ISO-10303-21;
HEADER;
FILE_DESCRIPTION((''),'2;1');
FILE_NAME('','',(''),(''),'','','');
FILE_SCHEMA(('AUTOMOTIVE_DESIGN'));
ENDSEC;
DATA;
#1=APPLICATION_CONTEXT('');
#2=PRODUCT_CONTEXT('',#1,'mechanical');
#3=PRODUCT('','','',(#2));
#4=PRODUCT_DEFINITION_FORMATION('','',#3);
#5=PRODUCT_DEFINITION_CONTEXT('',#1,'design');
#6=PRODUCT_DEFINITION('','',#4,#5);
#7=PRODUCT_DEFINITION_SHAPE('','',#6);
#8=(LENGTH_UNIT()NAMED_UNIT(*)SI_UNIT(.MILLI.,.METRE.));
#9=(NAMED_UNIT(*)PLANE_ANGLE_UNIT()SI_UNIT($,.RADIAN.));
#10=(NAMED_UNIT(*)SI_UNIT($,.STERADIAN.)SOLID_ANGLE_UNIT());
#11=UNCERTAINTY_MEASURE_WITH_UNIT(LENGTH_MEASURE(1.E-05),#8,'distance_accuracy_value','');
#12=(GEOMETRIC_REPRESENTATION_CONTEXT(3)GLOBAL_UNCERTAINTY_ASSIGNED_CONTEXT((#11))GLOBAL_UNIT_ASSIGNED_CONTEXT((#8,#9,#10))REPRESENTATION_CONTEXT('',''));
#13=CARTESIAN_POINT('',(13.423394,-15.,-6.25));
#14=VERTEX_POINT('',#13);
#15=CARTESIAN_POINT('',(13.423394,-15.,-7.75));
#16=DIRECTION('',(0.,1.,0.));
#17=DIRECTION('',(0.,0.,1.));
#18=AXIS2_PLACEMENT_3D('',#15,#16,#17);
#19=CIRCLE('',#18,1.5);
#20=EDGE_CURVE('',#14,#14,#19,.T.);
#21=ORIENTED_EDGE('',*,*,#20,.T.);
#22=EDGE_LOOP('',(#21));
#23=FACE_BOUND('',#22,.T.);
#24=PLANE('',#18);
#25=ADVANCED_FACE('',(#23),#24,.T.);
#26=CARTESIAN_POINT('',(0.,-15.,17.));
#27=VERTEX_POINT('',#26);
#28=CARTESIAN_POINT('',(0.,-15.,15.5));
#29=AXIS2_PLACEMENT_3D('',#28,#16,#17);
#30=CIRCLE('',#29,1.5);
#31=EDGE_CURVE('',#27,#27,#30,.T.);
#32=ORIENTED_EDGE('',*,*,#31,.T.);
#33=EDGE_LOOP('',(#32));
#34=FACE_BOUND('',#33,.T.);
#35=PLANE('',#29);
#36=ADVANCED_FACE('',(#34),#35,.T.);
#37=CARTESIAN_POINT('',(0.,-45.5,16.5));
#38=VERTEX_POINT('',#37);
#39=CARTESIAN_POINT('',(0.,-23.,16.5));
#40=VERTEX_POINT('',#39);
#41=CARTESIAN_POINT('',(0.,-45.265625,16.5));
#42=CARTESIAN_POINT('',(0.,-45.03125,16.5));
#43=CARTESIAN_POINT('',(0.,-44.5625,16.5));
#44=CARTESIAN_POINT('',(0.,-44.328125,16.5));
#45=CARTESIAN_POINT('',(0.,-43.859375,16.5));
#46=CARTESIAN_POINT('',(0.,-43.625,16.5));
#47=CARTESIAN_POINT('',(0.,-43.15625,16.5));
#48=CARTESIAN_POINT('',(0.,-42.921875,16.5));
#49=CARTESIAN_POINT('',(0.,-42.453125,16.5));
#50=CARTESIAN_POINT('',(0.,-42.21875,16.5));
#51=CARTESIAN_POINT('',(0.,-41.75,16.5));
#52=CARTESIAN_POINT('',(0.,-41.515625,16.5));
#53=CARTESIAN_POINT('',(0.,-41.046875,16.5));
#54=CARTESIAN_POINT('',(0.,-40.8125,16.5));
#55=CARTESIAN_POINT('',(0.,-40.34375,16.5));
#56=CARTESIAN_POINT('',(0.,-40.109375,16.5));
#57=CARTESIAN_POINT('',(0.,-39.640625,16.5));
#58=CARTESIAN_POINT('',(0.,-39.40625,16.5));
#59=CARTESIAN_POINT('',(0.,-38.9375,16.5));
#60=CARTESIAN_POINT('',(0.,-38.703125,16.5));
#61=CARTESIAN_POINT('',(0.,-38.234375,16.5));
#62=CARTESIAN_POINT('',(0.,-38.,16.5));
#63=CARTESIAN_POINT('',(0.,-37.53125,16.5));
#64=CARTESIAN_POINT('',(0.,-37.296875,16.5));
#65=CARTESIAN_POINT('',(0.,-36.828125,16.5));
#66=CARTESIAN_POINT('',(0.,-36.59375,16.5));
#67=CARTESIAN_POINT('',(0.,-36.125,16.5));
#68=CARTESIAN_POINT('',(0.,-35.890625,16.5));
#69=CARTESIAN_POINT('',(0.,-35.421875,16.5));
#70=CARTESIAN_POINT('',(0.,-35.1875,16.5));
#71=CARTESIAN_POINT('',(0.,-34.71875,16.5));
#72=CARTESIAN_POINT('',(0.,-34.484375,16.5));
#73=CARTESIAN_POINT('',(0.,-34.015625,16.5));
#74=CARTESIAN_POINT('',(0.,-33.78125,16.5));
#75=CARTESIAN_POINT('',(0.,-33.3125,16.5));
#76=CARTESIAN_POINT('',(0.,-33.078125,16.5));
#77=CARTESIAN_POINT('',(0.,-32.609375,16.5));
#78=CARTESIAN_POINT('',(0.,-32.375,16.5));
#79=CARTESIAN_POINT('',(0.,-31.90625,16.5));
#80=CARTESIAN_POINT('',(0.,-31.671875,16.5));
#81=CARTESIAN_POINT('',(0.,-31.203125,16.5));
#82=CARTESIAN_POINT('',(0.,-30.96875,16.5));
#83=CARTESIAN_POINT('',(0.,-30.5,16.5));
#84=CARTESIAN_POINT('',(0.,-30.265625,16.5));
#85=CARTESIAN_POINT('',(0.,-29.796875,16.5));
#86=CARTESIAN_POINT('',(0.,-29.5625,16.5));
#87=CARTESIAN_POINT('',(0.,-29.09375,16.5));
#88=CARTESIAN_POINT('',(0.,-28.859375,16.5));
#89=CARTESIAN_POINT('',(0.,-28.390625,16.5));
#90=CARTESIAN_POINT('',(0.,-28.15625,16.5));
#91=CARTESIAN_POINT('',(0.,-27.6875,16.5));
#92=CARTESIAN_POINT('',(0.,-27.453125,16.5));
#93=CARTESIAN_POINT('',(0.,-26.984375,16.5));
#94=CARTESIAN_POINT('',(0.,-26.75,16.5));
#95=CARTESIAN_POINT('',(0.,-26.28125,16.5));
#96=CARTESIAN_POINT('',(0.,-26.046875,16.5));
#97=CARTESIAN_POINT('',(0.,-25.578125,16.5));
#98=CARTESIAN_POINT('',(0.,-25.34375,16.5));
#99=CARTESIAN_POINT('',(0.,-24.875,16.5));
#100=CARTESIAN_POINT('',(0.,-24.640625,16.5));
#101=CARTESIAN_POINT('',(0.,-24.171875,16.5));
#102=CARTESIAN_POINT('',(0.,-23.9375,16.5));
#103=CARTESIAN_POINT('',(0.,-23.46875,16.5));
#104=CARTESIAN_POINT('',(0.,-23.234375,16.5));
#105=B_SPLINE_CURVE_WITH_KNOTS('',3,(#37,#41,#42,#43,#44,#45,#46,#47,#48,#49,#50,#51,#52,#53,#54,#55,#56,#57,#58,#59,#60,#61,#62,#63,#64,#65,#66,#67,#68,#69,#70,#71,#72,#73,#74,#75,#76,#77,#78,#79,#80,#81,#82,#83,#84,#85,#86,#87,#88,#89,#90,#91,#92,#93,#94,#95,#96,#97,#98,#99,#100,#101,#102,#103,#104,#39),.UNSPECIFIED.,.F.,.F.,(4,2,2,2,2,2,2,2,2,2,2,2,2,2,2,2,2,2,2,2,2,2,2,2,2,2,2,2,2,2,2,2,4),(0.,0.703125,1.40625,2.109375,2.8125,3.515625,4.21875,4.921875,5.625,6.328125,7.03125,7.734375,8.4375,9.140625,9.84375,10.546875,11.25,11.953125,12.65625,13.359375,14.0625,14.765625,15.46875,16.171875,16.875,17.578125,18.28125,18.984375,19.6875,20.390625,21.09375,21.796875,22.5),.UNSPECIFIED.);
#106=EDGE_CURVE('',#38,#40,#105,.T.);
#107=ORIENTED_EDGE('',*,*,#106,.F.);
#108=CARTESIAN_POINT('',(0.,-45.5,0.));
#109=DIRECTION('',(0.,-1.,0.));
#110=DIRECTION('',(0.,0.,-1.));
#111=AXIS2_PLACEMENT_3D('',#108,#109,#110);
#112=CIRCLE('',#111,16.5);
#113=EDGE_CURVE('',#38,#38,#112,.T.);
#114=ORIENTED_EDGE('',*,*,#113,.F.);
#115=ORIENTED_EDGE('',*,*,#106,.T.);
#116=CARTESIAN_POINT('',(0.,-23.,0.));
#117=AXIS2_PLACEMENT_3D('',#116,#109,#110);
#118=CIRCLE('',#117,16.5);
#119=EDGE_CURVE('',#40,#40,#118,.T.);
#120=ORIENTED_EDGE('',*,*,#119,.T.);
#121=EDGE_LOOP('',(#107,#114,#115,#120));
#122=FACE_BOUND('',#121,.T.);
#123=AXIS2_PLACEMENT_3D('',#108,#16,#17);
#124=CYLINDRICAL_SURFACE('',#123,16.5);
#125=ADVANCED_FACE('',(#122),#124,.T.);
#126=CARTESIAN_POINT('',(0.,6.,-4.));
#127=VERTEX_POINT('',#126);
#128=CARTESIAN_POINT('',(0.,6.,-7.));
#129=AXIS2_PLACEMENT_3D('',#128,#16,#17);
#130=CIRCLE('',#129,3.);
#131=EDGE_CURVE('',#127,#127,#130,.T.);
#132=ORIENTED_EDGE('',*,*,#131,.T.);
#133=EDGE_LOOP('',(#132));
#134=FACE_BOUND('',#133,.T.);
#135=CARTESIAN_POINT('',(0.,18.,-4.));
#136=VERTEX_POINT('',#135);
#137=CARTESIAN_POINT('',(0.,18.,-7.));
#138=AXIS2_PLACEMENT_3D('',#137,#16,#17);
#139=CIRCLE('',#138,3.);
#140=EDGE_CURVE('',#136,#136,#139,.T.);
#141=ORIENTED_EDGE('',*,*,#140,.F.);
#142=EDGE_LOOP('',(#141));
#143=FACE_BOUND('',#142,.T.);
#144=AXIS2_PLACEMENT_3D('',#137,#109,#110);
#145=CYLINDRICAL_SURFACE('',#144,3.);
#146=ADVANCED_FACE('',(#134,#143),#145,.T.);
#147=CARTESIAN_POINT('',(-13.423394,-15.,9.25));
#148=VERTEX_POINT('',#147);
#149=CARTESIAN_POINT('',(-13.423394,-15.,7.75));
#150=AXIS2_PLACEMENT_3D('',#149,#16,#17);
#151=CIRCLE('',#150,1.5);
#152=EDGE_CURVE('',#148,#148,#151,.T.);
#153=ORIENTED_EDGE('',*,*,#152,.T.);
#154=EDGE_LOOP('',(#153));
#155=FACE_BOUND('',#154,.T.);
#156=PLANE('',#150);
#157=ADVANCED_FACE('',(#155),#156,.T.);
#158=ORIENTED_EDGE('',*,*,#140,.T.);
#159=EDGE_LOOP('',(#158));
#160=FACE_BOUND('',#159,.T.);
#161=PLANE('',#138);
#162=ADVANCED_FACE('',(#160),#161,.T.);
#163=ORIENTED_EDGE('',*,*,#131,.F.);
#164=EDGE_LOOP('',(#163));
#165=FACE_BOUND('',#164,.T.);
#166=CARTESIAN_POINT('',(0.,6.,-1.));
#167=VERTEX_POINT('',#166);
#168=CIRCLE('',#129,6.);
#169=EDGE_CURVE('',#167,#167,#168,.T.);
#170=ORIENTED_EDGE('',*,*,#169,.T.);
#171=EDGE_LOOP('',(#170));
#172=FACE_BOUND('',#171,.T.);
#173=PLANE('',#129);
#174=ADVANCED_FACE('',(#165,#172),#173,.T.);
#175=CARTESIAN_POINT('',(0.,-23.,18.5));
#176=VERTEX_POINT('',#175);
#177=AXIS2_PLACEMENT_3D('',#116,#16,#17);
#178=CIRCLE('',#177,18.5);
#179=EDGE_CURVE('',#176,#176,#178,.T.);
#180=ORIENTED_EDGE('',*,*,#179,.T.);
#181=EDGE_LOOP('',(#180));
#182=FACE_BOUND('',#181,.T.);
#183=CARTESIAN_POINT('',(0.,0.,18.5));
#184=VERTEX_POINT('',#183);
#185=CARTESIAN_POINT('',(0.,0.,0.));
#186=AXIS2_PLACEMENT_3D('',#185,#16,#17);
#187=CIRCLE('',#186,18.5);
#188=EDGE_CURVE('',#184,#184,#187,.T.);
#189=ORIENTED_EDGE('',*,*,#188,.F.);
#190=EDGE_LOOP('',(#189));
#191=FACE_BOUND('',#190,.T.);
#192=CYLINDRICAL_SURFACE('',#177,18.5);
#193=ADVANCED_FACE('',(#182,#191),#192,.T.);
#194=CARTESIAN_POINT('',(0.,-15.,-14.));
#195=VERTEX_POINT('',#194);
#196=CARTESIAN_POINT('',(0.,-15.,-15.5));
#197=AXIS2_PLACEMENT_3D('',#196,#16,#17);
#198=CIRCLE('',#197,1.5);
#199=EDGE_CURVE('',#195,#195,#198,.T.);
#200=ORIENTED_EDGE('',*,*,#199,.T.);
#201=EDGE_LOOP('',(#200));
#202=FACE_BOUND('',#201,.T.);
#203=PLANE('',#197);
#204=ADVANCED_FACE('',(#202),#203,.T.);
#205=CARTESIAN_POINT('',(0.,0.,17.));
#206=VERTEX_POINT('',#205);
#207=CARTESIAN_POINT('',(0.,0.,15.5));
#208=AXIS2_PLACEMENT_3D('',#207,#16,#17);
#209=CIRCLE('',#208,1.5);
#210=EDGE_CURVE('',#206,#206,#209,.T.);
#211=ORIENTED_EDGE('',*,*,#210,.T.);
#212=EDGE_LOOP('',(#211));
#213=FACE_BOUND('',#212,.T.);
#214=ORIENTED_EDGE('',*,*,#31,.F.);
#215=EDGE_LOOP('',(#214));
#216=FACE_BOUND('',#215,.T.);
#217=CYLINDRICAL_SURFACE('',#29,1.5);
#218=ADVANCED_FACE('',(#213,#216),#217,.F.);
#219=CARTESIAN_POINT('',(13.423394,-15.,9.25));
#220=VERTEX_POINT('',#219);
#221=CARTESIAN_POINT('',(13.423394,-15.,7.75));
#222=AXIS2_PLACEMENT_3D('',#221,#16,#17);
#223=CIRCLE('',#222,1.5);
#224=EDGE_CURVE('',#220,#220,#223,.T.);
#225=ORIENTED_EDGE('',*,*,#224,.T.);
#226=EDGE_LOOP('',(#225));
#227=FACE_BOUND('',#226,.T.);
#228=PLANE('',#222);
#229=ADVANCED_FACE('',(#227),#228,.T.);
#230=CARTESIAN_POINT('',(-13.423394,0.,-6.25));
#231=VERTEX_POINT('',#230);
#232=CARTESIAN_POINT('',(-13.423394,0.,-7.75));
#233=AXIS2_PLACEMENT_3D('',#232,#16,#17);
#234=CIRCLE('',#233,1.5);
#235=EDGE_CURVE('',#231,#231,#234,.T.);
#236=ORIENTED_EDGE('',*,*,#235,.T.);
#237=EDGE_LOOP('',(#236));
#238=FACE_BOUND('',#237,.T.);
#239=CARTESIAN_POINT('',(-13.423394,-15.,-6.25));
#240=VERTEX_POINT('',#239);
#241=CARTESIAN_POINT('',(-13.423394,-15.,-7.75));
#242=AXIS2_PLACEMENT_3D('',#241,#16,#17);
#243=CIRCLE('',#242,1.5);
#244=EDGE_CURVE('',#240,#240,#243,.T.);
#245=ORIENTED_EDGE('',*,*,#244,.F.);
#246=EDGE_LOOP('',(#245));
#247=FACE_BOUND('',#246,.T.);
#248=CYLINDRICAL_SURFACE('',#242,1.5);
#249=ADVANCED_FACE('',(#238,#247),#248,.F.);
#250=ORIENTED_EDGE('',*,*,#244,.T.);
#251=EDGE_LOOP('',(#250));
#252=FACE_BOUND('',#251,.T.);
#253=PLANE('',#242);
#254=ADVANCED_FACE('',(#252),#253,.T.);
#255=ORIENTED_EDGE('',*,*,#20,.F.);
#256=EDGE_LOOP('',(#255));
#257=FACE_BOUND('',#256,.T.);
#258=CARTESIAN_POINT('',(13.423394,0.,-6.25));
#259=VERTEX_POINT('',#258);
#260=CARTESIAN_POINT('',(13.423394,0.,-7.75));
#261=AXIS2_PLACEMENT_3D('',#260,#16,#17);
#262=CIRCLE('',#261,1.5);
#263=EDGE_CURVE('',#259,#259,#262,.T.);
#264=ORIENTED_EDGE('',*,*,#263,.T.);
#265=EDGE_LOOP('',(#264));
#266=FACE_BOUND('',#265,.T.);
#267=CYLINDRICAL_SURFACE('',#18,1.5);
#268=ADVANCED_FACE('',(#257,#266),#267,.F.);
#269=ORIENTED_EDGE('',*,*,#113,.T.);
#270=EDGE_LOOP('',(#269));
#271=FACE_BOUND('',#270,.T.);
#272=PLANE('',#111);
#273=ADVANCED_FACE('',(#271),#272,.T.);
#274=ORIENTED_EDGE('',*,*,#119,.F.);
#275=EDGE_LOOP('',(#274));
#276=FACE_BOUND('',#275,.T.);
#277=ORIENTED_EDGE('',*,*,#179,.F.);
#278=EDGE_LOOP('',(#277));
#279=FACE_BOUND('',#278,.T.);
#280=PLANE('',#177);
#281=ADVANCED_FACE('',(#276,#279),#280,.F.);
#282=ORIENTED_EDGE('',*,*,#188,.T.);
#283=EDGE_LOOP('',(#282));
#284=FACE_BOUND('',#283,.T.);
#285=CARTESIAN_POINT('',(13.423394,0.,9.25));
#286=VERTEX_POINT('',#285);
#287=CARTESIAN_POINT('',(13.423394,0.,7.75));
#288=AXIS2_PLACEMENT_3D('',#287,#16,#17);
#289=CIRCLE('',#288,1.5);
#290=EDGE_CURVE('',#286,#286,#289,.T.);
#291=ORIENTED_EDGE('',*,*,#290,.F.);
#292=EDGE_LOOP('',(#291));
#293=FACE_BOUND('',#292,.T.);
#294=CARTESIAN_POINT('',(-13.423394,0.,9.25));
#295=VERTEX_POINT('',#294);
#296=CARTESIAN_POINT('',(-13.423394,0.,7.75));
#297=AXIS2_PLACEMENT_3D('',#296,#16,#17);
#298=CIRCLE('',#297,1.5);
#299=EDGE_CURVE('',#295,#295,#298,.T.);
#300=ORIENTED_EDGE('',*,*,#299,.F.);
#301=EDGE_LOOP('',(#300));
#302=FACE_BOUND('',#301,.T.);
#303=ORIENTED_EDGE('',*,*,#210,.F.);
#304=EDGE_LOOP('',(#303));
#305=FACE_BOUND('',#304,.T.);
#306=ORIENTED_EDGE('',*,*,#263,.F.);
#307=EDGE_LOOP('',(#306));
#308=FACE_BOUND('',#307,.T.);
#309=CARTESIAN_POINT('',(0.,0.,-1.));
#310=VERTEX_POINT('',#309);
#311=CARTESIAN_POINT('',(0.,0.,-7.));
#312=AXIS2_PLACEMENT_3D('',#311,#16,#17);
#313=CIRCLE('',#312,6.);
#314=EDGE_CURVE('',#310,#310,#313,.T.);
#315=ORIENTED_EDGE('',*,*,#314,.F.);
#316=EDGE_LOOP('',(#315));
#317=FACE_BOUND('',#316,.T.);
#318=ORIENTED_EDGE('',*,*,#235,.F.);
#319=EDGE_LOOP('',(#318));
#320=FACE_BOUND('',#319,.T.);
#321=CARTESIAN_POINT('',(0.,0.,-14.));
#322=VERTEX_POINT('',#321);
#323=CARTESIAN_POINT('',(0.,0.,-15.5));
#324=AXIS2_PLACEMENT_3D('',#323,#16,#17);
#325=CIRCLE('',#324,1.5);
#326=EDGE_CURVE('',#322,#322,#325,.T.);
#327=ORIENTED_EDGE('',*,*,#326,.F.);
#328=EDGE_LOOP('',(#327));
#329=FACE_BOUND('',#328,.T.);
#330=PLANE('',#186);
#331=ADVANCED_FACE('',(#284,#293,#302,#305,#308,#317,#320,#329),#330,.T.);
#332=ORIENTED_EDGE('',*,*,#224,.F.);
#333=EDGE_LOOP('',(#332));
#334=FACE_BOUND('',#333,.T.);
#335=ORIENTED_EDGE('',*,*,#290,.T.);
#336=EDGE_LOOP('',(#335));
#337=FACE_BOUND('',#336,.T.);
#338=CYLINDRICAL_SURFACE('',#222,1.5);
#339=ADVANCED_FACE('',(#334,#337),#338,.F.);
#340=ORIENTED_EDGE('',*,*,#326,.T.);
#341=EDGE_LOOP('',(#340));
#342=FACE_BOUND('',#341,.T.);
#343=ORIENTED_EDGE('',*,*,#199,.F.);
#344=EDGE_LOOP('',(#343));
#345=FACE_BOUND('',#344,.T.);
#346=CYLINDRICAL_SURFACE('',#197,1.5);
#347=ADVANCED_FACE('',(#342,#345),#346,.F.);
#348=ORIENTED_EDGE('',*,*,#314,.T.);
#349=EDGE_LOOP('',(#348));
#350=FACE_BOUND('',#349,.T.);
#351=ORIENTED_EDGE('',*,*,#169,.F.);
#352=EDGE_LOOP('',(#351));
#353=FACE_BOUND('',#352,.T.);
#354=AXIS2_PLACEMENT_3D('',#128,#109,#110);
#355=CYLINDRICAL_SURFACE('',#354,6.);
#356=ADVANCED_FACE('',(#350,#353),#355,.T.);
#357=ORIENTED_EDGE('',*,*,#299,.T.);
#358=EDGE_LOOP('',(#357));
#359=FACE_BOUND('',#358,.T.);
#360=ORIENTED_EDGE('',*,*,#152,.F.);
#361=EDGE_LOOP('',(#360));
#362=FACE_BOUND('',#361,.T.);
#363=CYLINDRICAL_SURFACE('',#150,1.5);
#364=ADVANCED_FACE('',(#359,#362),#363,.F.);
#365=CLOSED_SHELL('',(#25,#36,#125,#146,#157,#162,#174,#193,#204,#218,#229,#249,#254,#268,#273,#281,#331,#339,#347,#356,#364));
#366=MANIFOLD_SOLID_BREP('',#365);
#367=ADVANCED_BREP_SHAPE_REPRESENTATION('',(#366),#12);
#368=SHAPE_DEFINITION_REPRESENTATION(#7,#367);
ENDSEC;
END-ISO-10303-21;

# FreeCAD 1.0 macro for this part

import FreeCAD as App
import Part
import Sketcher

V = App.Vector
Q = App.Units.Quantity

doc = App.newDocument("Part")
body = doc.addObject("PartDesign::Body", "Body")

# Sketch on XZ plane
sketch1 = body.newObject("Sketcher::SketchObject", "Sketch")
sketch1.AttachmentSupport = (doc.getObject("XZ_Plane"), [""])
sketch1.MapMode = "FlatFace"
sketch1.addGeometry(Part.Circle(V(0, 0, 0), V(0, 0, 1), 18), False)
sketch1.addConstraint(Sketcher.Constraint("Coincident", 0, 3, -1, 1))
sketch1.addConstraint(Sketcher.Constraint("Diameter", 0, Q("37 mm")))
pad1 = body.newObject("PartDesign::Pad", "Pad")
pad1.Profile = sketch1
pad1.Length = 23

# Sketch on XZ plane
sketch2 = body.newObject("Sketcher::SketchObject", "Sketch001")
sketch2.AttachmentSupport = (doc.getObject("XZ_Plane"), [""])
sketch2.MapMode = "FlatFace"
sketch2.AttachmentOffset = App.Placement(V(0, 0, 23), App.Rotation())
sketch2.addGeometry(Part.Circle(V(0, 0, 0), V(0, 0, 1), 16), False)
sketch2.addConstraint(Sketcher.Constraint("Coincident", 0, 3, -1, 1))
sketch2.addConstraint(Sketcher.Constraint("Diameter", 0, Q("33 mm")))
pad2 = body.newObject("PartDesign::Pad", "Pad001")
pad2.Profile = sketch2
pad2.Length = 22.5

# Sketch on XZ plane
sketch3 = body.newObject("Sketcher::SketchObject", "Sketch002")
sketch3.AttachmentSupport = (doc.getObject("XZ_Plane"), [""])
sketch3.MapMode = "FlatFace"
sketch3.addGeometry(Part.Circle(V(0, -15.5, 0), V(0, 0, 1), 1.5), False)
sketch3.addGeometry(Part.Circle(V(13.4, -7.8, 0), V(0, 0, 1), 1.5), False)
sketch3.addGeometry(Part.Circle(V(13.4, 7.8, 0), V(0, 0, 1), 1.5), False)
sketch3.addGeometry(Part.Circle(V(0, 15.5, 0), V(0, 0, 1), 1.5), False)
sketch3.addGeometry(Part.Circle(V(-13.4, 7.8, 0), V(0, 0, 1), 1.5), False)
sketch3.addGeometry(Part.Circle(V(-13.4, -7.8, 0), V(0, 0, 1), 1.5), False)
sketch3.addConstraint(Sketcher.Constraint("Equal", 0, 1))
sketch3.addConstraint(Sketcher.Constraint("Equal", 1, 2))
sketch3.addConstraint(Sketcher.Constraint("Equal", 2, 3))
sketch3.addConstraint(Sketcher.Constraint("Equal", 3, 4))
sketch3.addConstraint(Sketcher.Constraint("Equal", 4, 5))
sketch3.addConstraint(Sketcher.Constraint("Symmetric", 0, 3, 3, 3, -1, 1))
sketch3.addConstraint(Sketcher.Constraint("Symmetric", 1, 3, 4, 3, -1, 1))
sketch3.addConstraint(Sketcher.Constraint("Symmetric", 2, 3, 5, 3, -1, 1))
sketch3.addConstraint(Sketcher.Constraint("Symmetric", 2, 3, 4, 3, -2))
sketch3.addConstraint(Sketcher.Constraint("PointOnObject", 0, 3, -2))
sketch3.addConstraint(Sketcher.Constraint("Diameter", 0, Q("3 mm")))
sketch3.addConstraint(Sketcher.Constraint("DistanceY", 0, 3, 3, 3, Q("31 mm")))
sketch3.addConstraint(Sketcher.Constraint("DistanceY", 1, 3, 2, 3, Q("15.5 mm")))
sketch3.addConstraint(Sketcher.Constraint("DistanceX", -1, 1, 1, 3, Q("13.423394 mm")))
pocket1 = body.newObject("PartDesign::Pocket", "Pocket")
pocket1.Profile = sketch3
pocket1.Length = 15
pocket1.Reversed = True

# Sketch on XZ plane
sketch4 = body.newObject("Sketcher::SketchObject", "Sketch003")
sketch4.AttachmentSupport = (doc.getObject("XZ_Plane"), [""])
sketch4.MapMode = "FlatFace"
sketch4.addGeometry(Part.Circle(V(0, -7, 0), V(0, 0, 1), 6), False)
sketch4.addConstraint(Sketcher.Constraint("PointOnObject", 0, 3, -2))
sketch4.addConstraint(Sketcher.Constraint("Diameter", 0, Q("12 mm")))
sketch4.addConstraint(Sketcher.Constraint("DistanceY", 0, 3, -1, 1, Q("7 mm")))
pad3 = body.newObject("PartDesign::Pad", "Pad002")
pad3.Profile = sketch4
pad3.Length = 6
pad3.Reversed = True

# Sketch on XZ plane
sketch5 = body.newObject("Sketcher::SketchObject", "Sketch004")
sketch5.AttachmentSupport = (doc.getObject("XZ_Plane"), [""])
sketch5.MapMode = "FlatFace"
sketch5.AttachmentOffset = App.Placement(V(0, 0, -6), App.Rotation())
sketch5.addGeometry(Part.Circle(V(0, -7, 0), V(0, 0, 1), 3), False)
sketch5.addConstraint(Sketcher.Constraint("PointOnObject", 0, 3, -2))
sketch5.addConstraint(Sketcher.Constraint("Diameter", 0, Q("6 mm")))
sketch5.addConstraint(Sketcher.Constraint("DistanceY", 0, 3, -1, 1, Q("7 mm")))
pad4 = body.newObject("PartDesign::Pad", "Pad003")
pad4.Profile = sketch5
pad4.Length = 12
pad4.Reversed = True

doc.recompute()
